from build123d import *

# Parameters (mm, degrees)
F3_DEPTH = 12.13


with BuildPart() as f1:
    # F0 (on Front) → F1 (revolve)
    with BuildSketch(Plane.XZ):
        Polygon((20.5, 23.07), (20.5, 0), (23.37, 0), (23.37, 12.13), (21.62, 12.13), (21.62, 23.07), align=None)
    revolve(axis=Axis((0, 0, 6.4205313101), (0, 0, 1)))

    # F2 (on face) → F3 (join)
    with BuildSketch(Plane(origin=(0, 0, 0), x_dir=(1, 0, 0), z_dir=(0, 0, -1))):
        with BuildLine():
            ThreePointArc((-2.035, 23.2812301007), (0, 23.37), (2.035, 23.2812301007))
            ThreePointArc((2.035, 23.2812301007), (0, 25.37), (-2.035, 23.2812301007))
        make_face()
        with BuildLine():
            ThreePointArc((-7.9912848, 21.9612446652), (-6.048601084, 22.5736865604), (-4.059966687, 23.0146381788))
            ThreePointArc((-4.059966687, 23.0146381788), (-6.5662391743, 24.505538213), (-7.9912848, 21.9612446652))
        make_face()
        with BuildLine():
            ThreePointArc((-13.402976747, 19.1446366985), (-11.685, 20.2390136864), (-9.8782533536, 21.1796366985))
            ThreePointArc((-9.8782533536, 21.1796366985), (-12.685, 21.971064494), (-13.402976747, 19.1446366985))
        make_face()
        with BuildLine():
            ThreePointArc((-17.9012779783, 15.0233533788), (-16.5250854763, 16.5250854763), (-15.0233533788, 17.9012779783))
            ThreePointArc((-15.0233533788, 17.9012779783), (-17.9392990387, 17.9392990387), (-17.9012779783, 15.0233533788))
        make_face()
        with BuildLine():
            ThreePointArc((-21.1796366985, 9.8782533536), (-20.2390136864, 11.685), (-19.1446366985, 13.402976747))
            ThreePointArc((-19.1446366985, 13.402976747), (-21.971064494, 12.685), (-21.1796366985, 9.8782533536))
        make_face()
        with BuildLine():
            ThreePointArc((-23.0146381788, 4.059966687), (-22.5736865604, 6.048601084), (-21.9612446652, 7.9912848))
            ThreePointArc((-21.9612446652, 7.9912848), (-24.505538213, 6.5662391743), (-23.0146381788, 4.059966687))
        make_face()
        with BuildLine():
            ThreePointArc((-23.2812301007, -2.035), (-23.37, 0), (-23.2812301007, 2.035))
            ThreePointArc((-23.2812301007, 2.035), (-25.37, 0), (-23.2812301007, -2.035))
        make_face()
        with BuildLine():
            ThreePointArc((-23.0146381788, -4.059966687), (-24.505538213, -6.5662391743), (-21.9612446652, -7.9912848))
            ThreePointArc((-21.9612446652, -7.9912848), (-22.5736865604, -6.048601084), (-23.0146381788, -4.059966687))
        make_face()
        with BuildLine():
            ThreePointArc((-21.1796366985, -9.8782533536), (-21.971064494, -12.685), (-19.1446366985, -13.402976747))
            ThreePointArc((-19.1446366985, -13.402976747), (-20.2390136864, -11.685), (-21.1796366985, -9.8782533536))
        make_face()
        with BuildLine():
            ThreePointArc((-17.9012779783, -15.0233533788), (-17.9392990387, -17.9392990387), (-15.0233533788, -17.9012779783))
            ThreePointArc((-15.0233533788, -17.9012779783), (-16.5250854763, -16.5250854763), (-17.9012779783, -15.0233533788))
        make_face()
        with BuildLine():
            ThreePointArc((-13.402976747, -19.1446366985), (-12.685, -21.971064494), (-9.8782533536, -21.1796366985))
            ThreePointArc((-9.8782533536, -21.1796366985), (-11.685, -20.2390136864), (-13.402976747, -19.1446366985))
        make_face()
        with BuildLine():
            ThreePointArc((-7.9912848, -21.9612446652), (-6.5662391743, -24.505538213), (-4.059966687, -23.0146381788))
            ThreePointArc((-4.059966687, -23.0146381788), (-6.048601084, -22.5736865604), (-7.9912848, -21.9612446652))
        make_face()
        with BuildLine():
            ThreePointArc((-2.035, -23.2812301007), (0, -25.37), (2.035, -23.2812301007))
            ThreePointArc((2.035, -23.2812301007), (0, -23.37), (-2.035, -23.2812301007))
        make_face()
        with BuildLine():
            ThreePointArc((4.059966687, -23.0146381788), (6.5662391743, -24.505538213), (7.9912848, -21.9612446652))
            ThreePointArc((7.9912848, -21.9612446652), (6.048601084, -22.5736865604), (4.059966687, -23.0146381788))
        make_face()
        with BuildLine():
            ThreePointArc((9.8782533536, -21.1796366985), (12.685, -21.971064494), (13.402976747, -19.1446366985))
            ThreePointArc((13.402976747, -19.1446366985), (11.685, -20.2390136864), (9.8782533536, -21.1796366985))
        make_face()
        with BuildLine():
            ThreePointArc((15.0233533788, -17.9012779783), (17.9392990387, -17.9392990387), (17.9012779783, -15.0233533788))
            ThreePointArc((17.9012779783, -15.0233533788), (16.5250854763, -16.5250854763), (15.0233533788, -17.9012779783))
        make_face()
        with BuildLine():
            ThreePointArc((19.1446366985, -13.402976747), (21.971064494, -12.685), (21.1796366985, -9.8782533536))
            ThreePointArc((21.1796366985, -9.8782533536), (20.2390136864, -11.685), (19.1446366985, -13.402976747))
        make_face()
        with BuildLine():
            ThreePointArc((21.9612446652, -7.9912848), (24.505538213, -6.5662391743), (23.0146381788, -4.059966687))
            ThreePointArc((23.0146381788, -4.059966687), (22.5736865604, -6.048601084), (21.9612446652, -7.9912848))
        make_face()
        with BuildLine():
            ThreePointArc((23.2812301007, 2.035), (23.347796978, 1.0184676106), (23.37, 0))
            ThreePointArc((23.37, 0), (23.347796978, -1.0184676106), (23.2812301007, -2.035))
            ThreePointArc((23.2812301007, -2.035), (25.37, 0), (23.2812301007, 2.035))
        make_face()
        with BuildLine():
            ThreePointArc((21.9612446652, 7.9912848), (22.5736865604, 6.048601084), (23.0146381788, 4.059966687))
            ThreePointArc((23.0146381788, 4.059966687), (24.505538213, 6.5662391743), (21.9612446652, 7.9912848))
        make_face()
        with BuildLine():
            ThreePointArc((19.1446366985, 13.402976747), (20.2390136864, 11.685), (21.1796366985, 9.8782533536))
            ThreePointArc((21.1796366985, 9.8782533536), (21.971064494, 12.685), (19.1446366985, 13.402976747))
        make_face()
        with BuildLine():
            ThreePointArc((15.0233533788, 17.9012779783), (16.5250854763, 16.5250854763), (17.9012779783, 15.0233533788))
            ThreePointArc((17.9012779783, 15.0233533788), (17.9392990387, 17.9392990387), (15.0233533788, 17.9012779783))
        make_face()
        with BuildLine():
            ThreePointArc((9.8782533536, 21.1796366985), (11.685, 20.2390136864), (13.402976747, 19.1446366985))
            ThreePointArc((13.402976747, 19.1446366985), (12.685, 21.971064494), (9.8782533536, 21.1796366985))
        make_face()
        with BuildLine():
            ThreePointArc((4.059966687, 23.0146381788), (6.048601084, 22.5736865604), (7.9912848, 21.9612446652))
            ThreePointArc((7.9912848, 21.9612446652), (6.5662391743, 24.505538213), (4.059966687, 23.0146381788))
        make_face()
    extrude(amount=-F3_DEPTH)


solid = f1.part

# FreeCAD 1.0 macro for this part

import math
import FreeCAD as App
import Part
import Sketcher
from FreeCAD import Vector
Q = App.Units.Quantity


def add_polygon(sketch, points):
    """Adds a closed chain of lines whose ends are joined by coincident constraints."""
    first, n = sketch.GeometryCount, len(points)
    for a, b in zip(points, points[1:] + points[:1]):
        sketch.addGeometry(Part.LineSegment(App.Vector(*a, 0), App.Vector(*b, 0)), False)
    for i in range(n):
        sketch.addConstraint(Sketcher.Constraint("Coincident", first + i, 2, first + (i + 1) % n, 1))

doc = App.newDocument("Part")
body = doc.addObject("PartDesign::Body", "Body")

# Sketch on XZ plane
sketch1 = body.newObject("Sketcher::SketchObject", "Sketch")
sketch1.AttachmentSupport = (doc.getObject("XZ_Plane"), [""])
sketch1.MapMode = "FlatFace"
add_polygon(sketch1, [(20.5, 23.07), (20.5, 0), (23.37, 0), (23.37, 12.13), (21.62, 12.13), (21.62, 23.07)])  # lines 0-5
sketch1.addConstraint(Sketcher.Constraint("Vertical", 0))
sketch1.addConstraint(Sketcher.Constraint("Horizontal", 1))
sketch1.addConstraint(Sketcher.Constraint("Vertical", 2))
sketch1.addConstraint(Sketcher.Constraint("Horizontal", 3))
sketch1.addConstraint(Sketcher.Constraint("Vertical", 4))
sketch1.addConstraint(Sketcher.Constraint("Horizontal", 5))
sketch1.addConstraint(Sketcher.Constraint("PointOnObject", 0, 2, -1))
sketch1.addConstraint(Sketcher.Constraint("DistanceX", 1, 1, 1, 2, Q("2.87 mm")))
sketch1.addConstraint(Sketcher.Constraint("DistanceX", 3, 2, 3, 1, Q("1.75 mm")))
sketch1.addConstraint(Sketcher.Constraint("DistanceY", 0, 2, 0, 1, Q("23.07 mm")))
sketch1.addConstraint(Sketcher.Constraint("DistanceY", 2, 1, 2, 2, Q("12.13 mm")))
sketch1.addConstraint(Sketcher.Constraint("DistanceX", -1, 1, 0, 2, Q("20.5 mm")))
revolution = body.newObject("PartDesign::Revolution", "Revolution")
revolution.Profile = sketch1
revolution.ReferenceAxis = (sketch1, ["V_Axis"])
revolution.Angle = 360

# Sketch on XY plane
sketch2 = body.newObject("Sketcher::SketchObject", "Sketch001")
sketch2.AttachmentSupport = (doc.getObject("XY_Plane"), [""])
sketch2.MapMode = "FlatFace"
sketch2.addGeometry(Part.ArcOfCircle(Part.Circle(Vector(0, 0, 0), Vector(0, 0, 1), 23.37), math.radians(-94.995497), math.radians(-85.004503)), False)
sketch2.addGeometry(Part.ArcOfCircle(Part.Circle(Vector(0, -23.334308, 0), Vector(0, 0, 1), 2.035692), math.radians(178.505924), math.radians(361.494076)), False)
sketch2.addGeometry(Part.ArcOfCircle(Part.Circle(Vector(0, 0, 0), Vector(0, 0, 1), 23.37), math.radians(-109.995497), math.radians(-100.004503)), False)
sketch2.addGeometry(Part.ArcOfCircle(Part.Circle(Vector(-6.039363, -22.539211, 0), Vector(0, 0, 1), 2.035692), math.radians(163.505924), math.radians(346.494076)), False)
sketch2.addGeometry(Part.ArcOfCircle(Part.Circle(Vector(0, 0, 0), Vector(0, 0, 1), 23.37), math.radians(-124.995497), math.radians(-115.004503)), False)
sketch2.addGeometry(Part.ArcOfCircle(Part.Circle(Vector(-11.667154, -20.208103, 0), Vector(0, 0, 1), 2.035692), math.radians(148.505924), math.radians(331.494076)), False)
sketch2.addGeometry(Part.ArcOfCircle(Part.Circle(Vector(0, 0, 0), Vector(0, 0, 1), 23.37), math.radians(-139.995497), math.radians(-130.004503)), False)
sketch2.addGeometry(Part.ArcOfCircle(Part.Circle(Vector(-16.499847, -16.499847, 0), Vector(0, 0, 1), 2.035692), math.radians(133.505924), math.radians(316.494076)), False)
sketch2.addGeometry(Part.ArcOfCircle(Part.Circle(Vector(0, 0, 0), Vector(0, 0, 1), 23.37), math.radians(-154.995497), math.radians(-145.004503)), False)
sketch2.addGeometry(Part.ArcOfCircle(Part.Circle(Vector(-20.208103, -11.667154, 0), Vector(0, 0, 1), 2.035692), math.radians(118.505924), math.radians(301.494076)), False)
sketch2.addGeometry(Part.ArcOfCircle(Part.Circle(Vector(0, 0, 0), Vector(0, 0, 1), 23.37), math.radians(-169.995497), math.radians(-160.004503)), False)
sketch2.addGeometry(Part.ArcOfCircle(Part.Circle(Vector(-22.539211, -6.039363, 0), Vector(0, 0, 1), 2.035692), math.radians(103.505924), math.radians(286.494076)), False)
sketch2.addGeometry(Part.ArcOfCircle(Part.Circle(Vector(0, 0, 0), Vector(0, 0, 1), 23.37), math.radians(175.004503), math.radians(184.995497)), False)
sketch2.addGeometry(Part.ArcOfCircle(Part.Circle(Vector(-23.334308, 0, 0), Vector(0, 0, 1), 2.035692), math.radians(88.505924), math.radians(271.494076)), False)
sketch2.addGeometry(Part.ArcOfCircle(Part.Circle(Vector(-22.539211, 6.039363, 0), Vector(0, 0, 1), 2.035692), math.radians(73.505924), math.radians(256.494076)), False)
sketch2.addGeometry(Part.ArcOfCircle(Part.Circle(Vector(0, 0, 0), Vector(0, 0, 1), 23.37), math.radians(160.004503), math.radians(169.995497)), False)
sketch2.addGeometry(Part.ArcOfCircle(Part.Circle(Vector(-20.208103, 11.667154, 0), Vector(0, 0, 1), 2.035692), math.radians(58.505924), math.radians(241.494076)), False)
sketch2.addGeometry(Part.ArcOfCircle(Part.Circle(Vector(0, 0, 0), Vector(0, 0, 1), 23.37), math.radians(145.004503), math.radians(154.995497)), False)
sketch2.addGeometry(Part.ArcOfCircle(Part.Circle(Vector(-16.499847, 16.499847, 0), Vector(0, 0, 1), 2.035692), math.radians(43.505924), math.radians(226.494076)), False)
sketch2.addGeometry(Part.ArcOfCircle(Part.Circle(Vector(0, 0, 0), Vector(0, 0, 1), 23.37), math.radians(130.004503), math.radians(139.995497)), False)
sketch2.addGeometry(Part.ArcOfCircle(Part.Circle(Vector(-11.667154, 20.208103, 0), Vector(0, 0, 1), 2.035692), math.radians(28.505924), math.radians(211.494076)), False)
sketch2.addGeometry(Part.ArcOfCircle(Part.Circle(Vector(0, 0, 0), Vector(0, 0, 1), 23.37), math.radians(115.004503), math.radians(124.995497)), False)
sketch2.addGeometry(Part.ArcOfCircle(Part.Circle(Vector(-6.039363, 22.539211, 0), Vector(0, 0, 1), 2.035692), math.radians(13.505924), math.radians(196.494076)), False)
sketch2.addGeometry(Part.ArcOfCircle(Part.Circle(Vector(0, 0, 0), Vector(0, 0, 1), 23.37), math.radians(100.004503), math.radians(109.995497)), False)
sketch2.addGeometry(Part.ArcOfCircle(Part.Circle(Vector(0, 23.334308, 0), Vector(0, 0, 1), 2.035692), math.radians(-1.494076), math.radians(181.494076)), False)
sketch2.addGeometry(Part.ArcOfCircle(Part.Circle(Vector(0, 0, 0), Vector(0, 0, 1), 23.37), math.radians(85.004503), math.radians(94.995497)), False)
sketch2.addGeometry(Part.ArcOfCircle(Part.Circle(Vector(6.039363, 22.539211, 0), Vector(0, 0, 1), 2.035692), math.radians(-16.494076), math.radians(166.494076)), False)
sketch2.addGeometry(Part.ArcOfCircle(Part.Circle(Vector(0, 0, 0), Vector(0, 0, 1), 23.37), math.radians(70.004503), math.radians(79.995497)), False)
sketch2.addGeometry(Part.ArcOfCircle(Part.Circle(Vector(11.667154, 20.208103, 0), Vector(0, 0, 1), 2.035692), math.radians(-31.494076), math.radians(151.494076)), False)
sketch2.addGeometry(Part.ArcOfCircle(Part.Circle(Vector(0, 0, 0), Vector(0, 0, 1), 23.37), math.radians(55.004503), math.radians(64.995497)), False)
sketch2.addGeometry(Part.ArcOfCircle(Part.Circle(Vector(16.499847, 16.499847, 0), Vector(0, 0, 1), 2.035692), math.radians(-46.494076), math.radians(136.494076)), False)
sketch2.addGeometry(Part.ArcOfCircle(Part.Circle(Vector(0, 0, 0), Vector(0, 0, 1), 23.37), math.radians(40.004503), math.radians(49.995497)), False)
sketch2.addGeometry(Part.ArcOfCircle(Part.Circle(Vector(20.208103, 11.667154, 0), Vector(0, 0, 1), 2.035692), math.radians(-61.494076), math.radians(121.494076)), False)
sketch2.addGeometry(Part.ArcOfCircle(Part.Circle(Vector(0, 0, 0), Vector(0, 0, 1), 23.37), math.radians(25.004503), math.radians(34.995497)), False)
sketch2.addGeometry(Part.ArcOfCircle(Part.Circle(Vector(22.539211, 6.039363, 0), Vector(0, 0, 1), 2.035692), math.radians(-76.494076), math.radians(106.494076)), False)
sketch2.addGeometry(Part.ArcOfCircle(Part.Circle(Vector(0, 0, 0), Vector(0, 0, 1), 23.37), math.radians(10.004503), math.radians(19.995497)), False)
sketch2.addGeometry(Part.ArcOfCircle(Part.Circle(Vector(0, 0, 0), Vector(0, 0, 1), 23.37), math.radians(-4.995497), math.radians(0)), False)
sketch2.addGeometry(Part.ArcOfCircle(Part.Circle(Vector(0, 0, 0), Vector(0, 0, 1), 23.37), math.radians(0), math.radians(4.995497)), False)
sketch2.addGeometry(Part.ArcOfCircle(Part.Circle(Vector(23.334308, 0, 0), Vector(0, 0, 1), 2.035692), math.radians(-91.494076), math.radians(91.494076)), False)
sketch2.addGeometry(Part.ArcOfCircle(Part.Circle(Vector(0, 0, 0), Vector(0, 0, 1), 23.37), math.radians(-19.995497), math.radians(-10.004503)), False)
sketch2.addGeometry(Part.ArcOfCircle(Part.Circle(Vector(22.539211, -6.039363, 0), Vector(0, 0, 1), 2.035692), math.radians(-106.494076), math.radians(76.494076)), False)
sketch2.addGeometry(Part.ArcOfCircle(Part.Circle(Vector(0, 0, 0), Vector(0, 0, 1), 23.37), math.radians(-34.995497), math.radians(-25.004503)), False)
sketch2.addGeometry(Part.ArcOfCircle(Part.Circle(Vector(20.208103, -11.667154, 0), Vector(0, 0, 1), 2.035692), math.radians(-121.494076), math.radians(61.494076)), False)
sketch2.addGeometry(Part.ArcOfCircle(Part.Circle(Vector(0, 0, 0), Vector(0, 0, 1), 23.37), math.radians(-49.995497), math.radians(-40.004503)), False)
sketch2.addGeometry(Part.ArcOfCircle(Part.Circle(Vector(16.499847, -16.499847, 0), Vector(0, 0, 1), 2.035692), math.radians(-136.494076), math.radians(46.494076)), False)
sketch2.addGeometry(Part.ArcOfCircle(Part.Circle(Vector(0, 0, 0), Vector(0, 0, 1), 23.37), math.radians(-64.995497), math.radians(-55.004503)), False)
sketch2.addGeometry(Part.ArcOfCircle(Part.Circle(Vector(11.667154, -20.208103, 0), Vector(0, 0, 1), 2.035692), math.radians(-151.494076), math.radians(31.494076)), False)
sketch2.addGeometry(Part.ArcOfCircle(Part.Circle(Vector(0, 0, 0), Vector(0, 0, 1), 23.37), math.radians(-79.995497), math.radians(-70.004503)), False)
sketch2.addGeometry(Part.ArcOfCircle(Part.Circle(Vector(6.039363, -22.539211, 0), Vector(0, 0, 1), 2.035692), math.radians(-166.494076), math.radians(16.494076)), False)
sketch2.addConstraint(Sketcher.Constraint("Coincident", 0, 1, 1, 1))
sketch2.addConstraint(Sketcher.Constraint("Coincident", 1, 2, 0, 2))
sketch2.addConstraint(Sketcher.Constraint("Coincident", 2, 1, 3, 1))
sketch2.addConstraint(Sketcher.Constraint("Coincident", 3, 2, 2, 2))
sketch2.addConstraint(Sketcher.Constraint("Coincident", 4, 1, 5, 1))
sketch2.addConstraint(Sketcher.Constraint("Coincident", 5, 2, 4, 2))
sketch2.addConstraint(Sketcher.Constraint("Coincident", 6, 1, 7, 1))
sketch2.addConstraint(Sketcher.Constraint("Coincident", 7, 2, 6, 2))
sketch2.addConstraint(Sketcher.Constraint("Coincident", 8, 1, 9, 1))
sketch2.addConstraint(Sketcher.Constraint("Coincident", 9, 2, 8, 2))
sketch2.addConstraint(Sketcher.Constraint("Coincident", 10, 1, 11, 1))
sketch2.addConstraint(Sketcher.Constraint("Coincident", 11, 2, 10, 2))
sketch2.addConstraint(Sketcher.Constraint("Coincident", 12, 1, 13, 1))
sketch2.addConstraint(Sketcher.Constraint("Coincident", 13, 2, 12, 2))
sketch2.addConstraint(Sketcher.Constraint("Coincident", 14, 1, 15, 1))
sketch2.addConstraint(Sketcher.Constraint("Coincident", 15, 2, 14, 2))
sketch2.addConstraint(Sketcher.Constraint("Coincident", 16, 1, 17, 1))
sketch2.addConstraint(Sketcher.Constraint("Coincident", 17, 2, 16, 2))
sketch2.addConstraint(Sketcher.Constraint("Coincident", 18, 1, 19, 1))
sketch2.addConstraint(Sketcher.Constraint("Coincident", 19, 2, 18, 2))
sketch2.addConstraint(Sketcher.Constraint("Coincident", 20, 1, 21, 1))
sketch2.addConstraint(Sketcher.Constraint("Coincident", 21, 2, 20, 2))
sketch2.addConstraint(Sketcher.Constraint("Coincident", 22, 1, 23, 1))
sketch2.addConstraint(Sketcher.Constraint("Coincident", 23, 2, 22, 2))
sketch2.addConstraint(Sketcher.Constraint("Coincident", 24, 1, 25, 1))
sketch2.addConstraint(Sketcher.Constraint("Coincident", 25, 2, 24, 2))
sketch2.addConstraint(Sketcher.Constraint("Coincident", 26, 1, 27, 1))
sketch2.addConstraint(Sketcher.Constraint("Coincident", 27, 2, 26, 2))
sketch2.addConstraint(Sketcher.Constraint("Coincident", 28, 1, 29, 1))
sketch2.addConstraint(Sketcher.Constraint("Coincident", 29, 2, 28, 2))
sketch2.addConstraint(Sketcher.Constraint("Coincident", 30, 1, 31, 1))
sketch2.addConstraint(Sketcher.Constraint("Coincident", 31, 2, 30, 2))
sketch2.addConstraint(Sketcher.Constraint("Coincident", 32, 1, 33, 1))
sketch2.addConstraint(Sketcher.Constraint("Coincident", 33, 2, 32, 2))
sketch2.addConstraint(Sketcher.Constraint("Coincident", 34, 1, 35, 1))
sketch2.addConstraint(Sketcher.Constraint("Coincident", 35, 2, 34, 2))
sketch2.addConstraint(Sketcher.Constraint("Tangent", 36, 2, 37, 1))
sketch2.addConstraint(Sketcher.Constraint("Coincident", 37, 2, 38, 2))
sketch2.addConstraint(Sketcher.Constraint("Coincident", 38, 1, 36, 1))
sketch2.addConstraint(Sketcher.Constraint("Coincident", 39, 1, 40, 1))
sketch2.addConstraint(Sketcher.Constraint("Coincident", 40, 2, 39, 2))
sketch2.addConstraint(Sketcher.Constraint("Coincident", 41, 1, 42, 1))
sketch2.addConstraint(Sketcher.Constraint("Coincident", 42, 2, 41, 2))
sketch2.addConstraint(Sketcher.Constraint("Coincident", 43, 1, 44, 1))
sketch2.addConstraint(Sketcher.Constraint("Coincident", 44, 2, 43, 2))
sketch2.addConstraint(Sketcher.Constraint("Coincident", 45, 1, 46, 1))
sketch2.addConstraint(Sketcher.Constraint("Coincident", 46, 2, 45, 2))
sketch2.addConstraint(Sketcher.Constraint("Coincident", 47, 1, 48, 1))
sketch2.addConstraint(Sketcher.Constraint("Coincident", 48, 2, 47, 2))
sketch2.addConstraint(Sketcher.Constraint("Coincident", 0, 3, -1, 1))
sketch2.addConstraint(Sketcher.Constraint("Coincident", 2, 3, -1, 1))
sketch2.addConstraint(Sketcher.Constraint("Coincident", 4, 3, -1, 1))
sketch2.addConstraint(Sketcher.Constraint("Coincident", 6, 3, -1, 1))
sketch2.addConstraint(Sketcher.Constraint("Coincident", 8, 3, -1, 1))
sketch2.addConstraint(Sketcher.Constraint("Coincident", 10, 3, -1, 1))
sketch2.addConstraint(Sketcher.Constraint("Coincident", 12, 3, -1, 1))
sketch2.addConstraint(Sketcher.Constraint("Coincident", 15, 3, -1, 1))
sketch2.addConstraint(Sketcher.Constraint("Coincident", 17, 3, -1, 1))
sketch2.addConstraint(Sketcher.Constraint("Coincident", 19, 3, -1, 1))
sketch2.addConstraint(Sketcher.Constraint("Coincident", 21, 3, -1, 1))
sketch2.addConstraint(Sketcher.Constraint("Coincident", 23, 3, -1, 1))
sketch2.addConstraint(Sketcher.Constraint("Coincident", 25, 3, -1, 1))
sketch2.addConstraint(Sketcher.Constraint("Coincident", 27, 3, -1, 1))
sketch2.addConstraint(Sketcher.Constraint("Coincident", 29, 3, -1, 1))
sketch2.addConstraint(Sketcher.Constraint("Coincident", 31, 3, -1, 1))
sketch2.addConstraint(Sketcher.Constraint("Coincident", 33, 3, -1, 1))
sketch2.addConstraint(Sketcher.Constraint("Coincident", 35, 3, -1, 1))
sketch2.addConstraint(Sketcher.Constraint("Coincident", 36, 3, -1, 1))
sketch2.addConstraint(Sketcher.Constraint("Coincident", 39, 3, -1, 1))
sketch2.addConstraint(Sketcher.Constraint("Coincident", 41, 3, -1, 1))
sketch2.addConstraint(Sketcher.Constraint("Coincident", 43, 3, -1, 1))
sketch2.addConstraint(Sketcher.Constraint("Coincident", 45, 3, -1, 1))
sketch2.addConstraint(Sketcher.Constraint("Coincident", 47, 3, -1, 1))
sketch2.addConstraint(Sketcher.Constraint("Equal", 0, 2))
sketch2.addConstraint(Sketcher.Constraint("Equal", 1, 3))
sketch2.addConstraint(Sketcher.Constraint("Equal", 2, 4))
sketch2.addConstraint(Sketcher.Constraint("Equal", 3, 5))
sketch2.addConstraint(Sketcher.Constraint("Equal", 4, 6))
sketch2.addConstraint(Sketcher.Constraint("Equal", 5, 7))
sketch2.addConstraint(Sketcher.Constraint("Equal", 6, 8))
sketch2.addConstraint(Sketcher.Constraint("Equal", 7, 9))
sketch2.addConstraint(Sketcher.Constraint("Equal", 8, 10))
sketch2.addConstraint(Sketcher.Constraint("Equal", 9, 11))
sketch2.addConstraint(Sketcher.Constraint("Equal", 10, 12))
sketch2.addConstraint(Sketcher.Constraint("Equal", 11, 13))
sketch2.addConstraint(Sketcher.Constraint("Equal", 13, 14))
sketch2.addConstraint(Sketcher.Constraint("Equal", 12, 15))
sketch2.addConstraint(Sketcher.Constraint("Equal", 14, 16))
sketch2.addConstraint(Sketcher.Constraint("Equal", 15, 17))
sketch2.addConstraint(Sketcher.Constraint("Equal", 16, 18))
sketch2.addConstraint(Sketcher.Constraint("Equal", 17, 19))
sketch2.addConstraint(Sketcher.Constraint("Equal", 18, 20))
sketch2.addConstraint(Sketcher.Constraint("Equal", 19, 21))
sketch2.addConstraint(Sketcher.Constraint("Equal", 20, 22))
sketch2.addConstraint(Sketcher.Constraint("Equal", 21, 23))
sketch2.addConstraint(Sketcher.Constraint("Equal", 22, 24))
sketch2.addConstraint(Sketcher.Constraint("Equal", 23, 25))
sketch2.addConstraint(Sketcher.Constraint("Equal", 24, 26))
sketch2.addConstraint(Sketcher.Constraint("Equal", 25, 27))
sketch2.addConstraint(Sketcher.Constraint("Equal", 26, 28))
sketch2.addConstraint(Sketcher.Constraint("Equal", 27, 29))
sketch2.addConstraint(Sketcher.Constraint("Equal", 28, 30))
sketch2.addConstraint(Sketcher.Constraint("Equal", 29, 31))
sketch2.addConstraint(Sketcher.Constraint("Equal", 30, 32))
sketch2.addConstraint(Sketcher.Constraint("Equal", 31, 33))
sketch2.addConstraint(Sketcher.Constraint("Equal", 32, 34))
sketch2.addConstraint(Sketcher.Constraint("Equal", 33, 35))
sketch2.addConstraint(Sketcher.Constraint("Equal", 35, 36))
sketch2.addConstraint(Sketcher.Constraint("Equal", 36, 37))
sketch2.addConstraint(Sketcher.Constraint("Equal", 34, 38))
sketch2.addConstraint(Sketcher.Constraint("Equal", 37, 39))
sketch2.addConstraint(Sketcher.Constraint("Equal", 38, 40))
sketch2.addConstraint(Sketcher.Constraint("Equal", 39, 41))
sketch2.addConstraint(Sketcher.Constraint("Equal", 40, 42))
sketch2.addConstraint(Sketcher.Constraint("Equal", 41, 43))
sketch2.addConstraint(Sketcher.Constraint("Equal", 42, 44))
sketch2.addConstraint(Sketcher.Constraint("Equal", 43, 45))
sketch2.addConstraint(Sketcher.Constraint("Equal", 44, 46))
sketch2.addConstraint(Sketcher.Constraint("Equal", 45, 47))
sketch2.addConstraint(Sketcher.Constraint("Equal", 46, 48))
sketch2.addConstraint(Sketcher.Constraint("Symmetric", 1, 3, 24, 3, -1, 1))
sketch2.addConstraint(Sketcher.Constraint("Symmetric", 3, 3, 26, 3, -1, 1))
sketch2.addConstraint(Sketcher.Constraint("Symmetric", 5, 3, 28, 3, -1, 1))
sketch2.addConstraint(Sketcher.Constraint("Symmetric", 7, 3, 30, 3, -1, 1))
sketch2.addConstraint(Sketcher.Constraint("Symmetric", 9, 3, 32, 3, -1, 1))
sketch2.addConstraint(Sketcher.Constraint("Symmetric", 11, 3, 34, 3, -1, 1))
sketch2.addConstraint(Sketcher.Constraint("Symmetric", 13, 3, 38, 3, -1, 1))
sketch2.addConstraint(Sketcher.Constraint("Symmetric", 14, 3, 40, 3, -1, 1))
sketch2.addConstraint(Sketcher.Constraint("Symmetric", 16, 3, 42, 3, -1, 1))
sketch2.addConstraint(Sketcher.Constraint("Symmetric", 18, 3, 44, 3, -1, 1))
sketch2.addConstraint(Sketcher.Constraint("Symmetric", 20, 3, 46, 3, -1, 1))
sketch2.addConstraint(Sketcher.Constraint("Symmetric", 22, 3, 48, 3, -1, 1))
sketch2.addConstraint(Sketcher.Constraint("Symmetric", 22, 3, 26, 3, -2))
sketch2.addConstraint(Sketcher.Constraint("Symmetric", 20, 3, 28, 3, -2))
sketch2.addConstraint(Sketcher.Constraint("Symmetric", 18, 3, 30, 3, -2))
sketch2.addConstraint(Sketcher.Constraint("Symmetric", 16, 3, 32, 3, -2))
sketch2.addConstraint(Sketcher.Constraint("Symmetric", 14, 3, 34, 3, -2))
sketch2.addConstraint(Sketcher.Constraint("PointOnObject", 1, 3, -2))
sketch2.addConstraint(Sketcher.Constraint("PointOnObject", 13, 3, -1))
sketch2.addConstraint(Sketcher.Constraint("PointOnObject", 36, 2, -1))
sketch2.addConstraint(Sketcher.Constraint("Radius", 0, Q("23.37 mm")))
sketch2.addConstraint(Sketcher.Constraint("DistanceX", 0, 1, -1, 1, Q("2.035 mm")))
sketch2.addConstraint(Sketcher.Constraint("DistanceY", 13, 2, -1, 1, Q("2.035 mm")))
sketch2.addConstraint(Sketcher.Constraint("Radius", 1, Q("2.035692 mm")))
sketch2.addConstraint(Sketcher.Constraint("DistanceY", 3, 3, -1, 1, Q("22.539211 mm")))
sketch2.addConstraint(Sketcher.Constraint("DistanceX", 11, 3, -1, 1, Q("22.539211 mm")))
sketch2.addConstraint(Sketcher.Constraint("DistanceY", 3, 2, -1, 1, Q("23.014638 mm")))
sketch2.addConstraint(Sketcher.Constraint("DistanceX", 10, 1, -1, 1, Q("23.014638 mm")))
sketch2.addConstraint(Sketcher.Constraint("DistanceX", 5, 3, -1, 1, Q("11.667154 mm")))
sketch2.addConstraint(Sketcher.Constraint("DistanceY", 5, 3, -1, 1, Q("20.208103 mm")))
sketch2.addConstraint(Sketcher.Constraint("DistanceX", 7, 3, -1, 1, Q("16.499847 mm")))
sketch2.addConstraint(Sketcher.Constraint("DistanceY", 7, 3, -1, 1, Q("16.499847 mm")))
sketch2.addConstraint(Sketcher.Constraint("DistanceX", 9, 3, -1, 1, Q("20.208103 mm")))
sketch2.addConstraint(Sketcher.Constraint("DistanceY", 9, 3, -1, 1, Q("11.667154 mm")))
pad1 = body.newObject("PartDesign::Pad", "Pad")
pad1.Profile = sketch2
pad1.Length = 12.13

doc.recompute()
